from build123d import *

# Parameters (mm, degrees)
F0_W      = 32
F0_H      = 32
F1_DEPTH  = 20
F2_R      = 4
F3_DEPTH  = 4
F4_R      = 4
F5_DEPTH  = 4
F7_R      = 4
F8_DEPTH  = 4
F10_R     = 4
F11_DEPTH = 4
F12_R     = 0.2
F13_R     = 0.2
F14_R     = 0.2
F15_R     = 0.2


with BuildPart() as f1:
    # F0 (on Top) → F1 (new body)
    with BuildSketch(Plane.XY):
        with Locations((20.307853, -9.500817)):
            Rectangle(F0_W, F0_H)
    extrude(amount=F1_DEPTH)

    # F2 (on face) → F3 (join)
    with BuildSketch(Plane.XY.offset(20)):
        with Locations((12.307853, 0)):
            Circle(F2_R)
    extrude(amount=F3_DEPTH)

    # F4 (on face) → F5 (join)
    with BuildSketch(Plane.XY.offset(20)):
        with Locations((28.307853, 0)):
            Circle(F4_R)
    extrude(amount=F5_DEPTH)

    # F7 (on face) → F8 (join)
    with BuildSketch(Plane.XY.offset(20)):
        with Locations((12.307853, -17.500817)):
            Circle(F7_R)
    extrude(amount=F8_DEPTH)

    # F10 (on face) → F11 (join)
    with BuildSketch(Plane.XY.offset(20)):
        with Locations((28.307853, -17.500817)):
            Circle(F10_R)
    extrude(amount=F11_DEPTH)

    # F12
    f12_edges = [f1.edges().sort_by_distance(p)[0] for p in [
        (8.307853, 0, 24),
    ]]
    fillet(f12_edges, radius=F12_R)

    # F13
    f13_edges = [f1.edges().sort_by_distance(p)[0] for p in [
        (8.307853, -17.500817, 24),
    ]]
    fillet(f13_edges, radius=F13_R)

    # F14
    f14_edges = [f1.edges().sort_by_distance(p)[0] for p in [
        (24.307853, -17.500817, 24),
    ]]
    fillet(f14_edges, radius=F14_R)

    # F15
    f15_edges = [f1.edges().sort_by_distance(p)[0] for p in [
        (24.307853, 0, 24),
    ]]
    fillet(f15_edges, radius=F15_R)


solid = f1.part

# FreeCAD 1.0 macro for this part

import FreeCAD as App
import Part
import Sketcher

V = App.Vector
Q = App.Units.Quantity


def edges_at(feature, points):
    """Names of the edges that pass closest to the given points."""
    edges = feature.Shape.Edges
    near = lambda p: min(range(len(edges)), key=lambda i: edges[i].distToShape(Part.Vertex(*p))[0])
    return sorted({f"Edge{near(p) + 1}" for p in points})

doc = App.newDocument("Part")
body = doc.addObject("PartDesign::Body", "Body")

# Sketch on XY plane
sketch1 = body.newObject("Sketcher::SketchObject", "Sketch")
sketch1.AttachmentSupport = (doc.getObject("XY_Plane"), [""])
sketch1.MapMode = "FlatFace"
sketch1.addGeometry([
    Part.LineSegment(V(4, 6, 0), V(4, -26, 0)),
    Part.LineSegment(V(4, -26, 0), V(36, -26, 0)),
    Part.LineSegment(V(36, -26, 0), V(36, 6, 0)),
    Part.LineSegment(V(36, 6, 0), V(4, 6, 0)),
], False)
sketch1.addConstraint([
    Sketcher.Constraint("Coincident", 0, 2, 1, 1),
    Sketcher.Constraint("Coincident", 1, 2, 2, 1),
    Sketcher.Constraint("Coincident", 2, 2, 3, 1),
    Sketcher.Constraint("Coincident", 3, 2, 0, 1),
    Sketcher.Constraint("Vertical", 0),
    Sketcher.Constraint("Horizontal", 1),
    Sketcher.Constraint("Vertical", 2),
    Sketcher.Constraint("Horizontal", 3),
    Sketcher.Constraint("Equal", 3, 0),
    Sketcher.Constraint("DistanceX", 1, 1, 1, 2, Q("32 mm")),
    Sketcher.Constraint("DistanceX", -1, 1, 0, 2, Q("4.307853 mm")),
    Sketcher.Constraint("DistanceY", 0, 2, -1, 1, Q("25.500817 mm")),
])
pad1 = body.newObject("PartDesign::Pad", "Pad")
pad1.Profile = sketch1
pad1.Length = 20

# Sketch on XY plane
sketch2 = body.newObject("Sketcher::SketchObject", "Sketch001")
sketch2.AttachmentSupport = (doc.getObject("XY_Plane"), [""])
sketch2.MapMode = "FlatFace"
sketch2.AttachmentOffset = App.Placement(V(0, 0, 20), App.Rotation())
sketch2.addGeometry(Part.Circle(V(12.3, 0, 0), V(0, 0, 1), 4), False)
sketch2.addConstraint([
    Sketcher.Constraint("PointOnObject", 0, 3, -1),
    Sketcher.Constraint("Diameter", 0, Q("8 mm")),
    Sketcher.Constraint("DistanceX", -1, 1, 0, 3, Q("12.307853 mm")),
])
pad2 = body.newObject("PartDesign::Pad", "Pad001")
pad2.Profile = sketch2
pad2.Length = 4

# Sketch on XY plane
sketch3 = body.newObject("Sketcher::SketchObject", "Sketch002")
sketch3.AttachmentSupport = (doc.getObject("XY_Plane"), [""])
sketch3.MapMode = "FlatFace"
sketch3.AttachmentOffset = App.Placement(V(0, 0, 20), App.Rotation())
sketch3.addGeometry(Part.Circle(V(28.3, 0, 0), V(0, 0, 1), 4), False)
sketch3.addConstraint([
    Sketcher.Constraint("PointOnObject", 0, 3, -1),
    Sketcher.Constraint("Diameter", 0, Q("8 mm")),
    Sketcher.Constraint("DistanceX", -1, 1, 0, 3, Q("28.307853 mm")),
])
pad3 = body.newObject("PartDesign::Pad", "Pad002")
pad3.Profile = sketch3
pad3.Length = 4

# Sketch on XY plane
sketch4 = body.newObject("Sketcher::SketchObject", "Sketch003")
sketch4.AttachmentSupport = (doc.getObject("XY_Plane"), [""])
sketch4.MapMode = "FlatFace"
sketch4.AttachmentOffset = App.Placement(V(0, 0, 20), App.Rotation())
sketch4.addGeometry(Part.Circle(V(12.3, -17.5, 0), V(0, 0, 1), 4), False)
sketch4.addConstraint([
    Sketcher.Constraint("Diameter", 0, Q("8 mm")),
    Sketcher.Constraint("DistanceX", -1, 1, 0, 3, Q("12.307853 mm")),
    Sketcher.Constraint("DistanceY", 0, 3, -1, 1, Q("17.500817 mm")),
])
pad4 = body.newObject("PartDesign::Pad", "Pad003")
pad4.Profile = sketch4
pad4.Length = 4

# Sketch on XY plane
sketch5 = body.newObject("Sketcher::SketchObject", "Sketch004")
sketch5.AttachmentSupport = (doc.getObject("XY_Plane"), [""])
sketch5.MapMode = "FlatFace"
sketch5.AttachmentOffset = App.Placement(V(0, 0, 20), App.Rotation())
sketch5.addGeometry(Part.Circle(V(28.3, -17.5, 0), V(0, 0, 1), 4), False)
sketch5.addConstraint([
    Sketcher.Constraint("Diameter", 0, Q("8 mm")),
    Sketcher.Constraint("DistanceX", -1, 1, 0, 3, Q("28.307853 mm")),
    Sketcher.Constraint("DistanceY", 0, 3, -1, 1, Q("17.500817 mm")),
])
pad5 = body.newObject("PartDesign::Pad", "Pad004")
pad5.Profile = sketch5
pad5.Length = 4
doc.recompute()

fillet = body.newObject("PartDesign::Fillet", "Fillet")
fillet.Base = (pad5, edges_at(pad5, [(8.308, 0, 24)]))
fillet.Radius = 0.2
doc.recompute()

fillet2 = body.newObject("PartDesign::Fillet", "Fillet001")
fillet2.Base = (fillet, edges_at(fillet, [(8.308, -17.501, 24)]))
fillet2.Radius = 0.2
doc.recompute()

fillet3 = body.newObject("PartDesign::Fillet", "Fillet002")
fillet3.Base = (fillet2, edges_at(fillet2, [(24.308, -17.501, 24)]))
fillet3.Radius = 0.2
doc.recompute()

fillet4 = body.newObject("PartDesign::Fillet", "Fillet003")
fillet4.Base = (fillet3, edges_at(fillet3, [(24.308, 0, 24)]))
fillet4.Radius = 0.2

doc.recompute()
